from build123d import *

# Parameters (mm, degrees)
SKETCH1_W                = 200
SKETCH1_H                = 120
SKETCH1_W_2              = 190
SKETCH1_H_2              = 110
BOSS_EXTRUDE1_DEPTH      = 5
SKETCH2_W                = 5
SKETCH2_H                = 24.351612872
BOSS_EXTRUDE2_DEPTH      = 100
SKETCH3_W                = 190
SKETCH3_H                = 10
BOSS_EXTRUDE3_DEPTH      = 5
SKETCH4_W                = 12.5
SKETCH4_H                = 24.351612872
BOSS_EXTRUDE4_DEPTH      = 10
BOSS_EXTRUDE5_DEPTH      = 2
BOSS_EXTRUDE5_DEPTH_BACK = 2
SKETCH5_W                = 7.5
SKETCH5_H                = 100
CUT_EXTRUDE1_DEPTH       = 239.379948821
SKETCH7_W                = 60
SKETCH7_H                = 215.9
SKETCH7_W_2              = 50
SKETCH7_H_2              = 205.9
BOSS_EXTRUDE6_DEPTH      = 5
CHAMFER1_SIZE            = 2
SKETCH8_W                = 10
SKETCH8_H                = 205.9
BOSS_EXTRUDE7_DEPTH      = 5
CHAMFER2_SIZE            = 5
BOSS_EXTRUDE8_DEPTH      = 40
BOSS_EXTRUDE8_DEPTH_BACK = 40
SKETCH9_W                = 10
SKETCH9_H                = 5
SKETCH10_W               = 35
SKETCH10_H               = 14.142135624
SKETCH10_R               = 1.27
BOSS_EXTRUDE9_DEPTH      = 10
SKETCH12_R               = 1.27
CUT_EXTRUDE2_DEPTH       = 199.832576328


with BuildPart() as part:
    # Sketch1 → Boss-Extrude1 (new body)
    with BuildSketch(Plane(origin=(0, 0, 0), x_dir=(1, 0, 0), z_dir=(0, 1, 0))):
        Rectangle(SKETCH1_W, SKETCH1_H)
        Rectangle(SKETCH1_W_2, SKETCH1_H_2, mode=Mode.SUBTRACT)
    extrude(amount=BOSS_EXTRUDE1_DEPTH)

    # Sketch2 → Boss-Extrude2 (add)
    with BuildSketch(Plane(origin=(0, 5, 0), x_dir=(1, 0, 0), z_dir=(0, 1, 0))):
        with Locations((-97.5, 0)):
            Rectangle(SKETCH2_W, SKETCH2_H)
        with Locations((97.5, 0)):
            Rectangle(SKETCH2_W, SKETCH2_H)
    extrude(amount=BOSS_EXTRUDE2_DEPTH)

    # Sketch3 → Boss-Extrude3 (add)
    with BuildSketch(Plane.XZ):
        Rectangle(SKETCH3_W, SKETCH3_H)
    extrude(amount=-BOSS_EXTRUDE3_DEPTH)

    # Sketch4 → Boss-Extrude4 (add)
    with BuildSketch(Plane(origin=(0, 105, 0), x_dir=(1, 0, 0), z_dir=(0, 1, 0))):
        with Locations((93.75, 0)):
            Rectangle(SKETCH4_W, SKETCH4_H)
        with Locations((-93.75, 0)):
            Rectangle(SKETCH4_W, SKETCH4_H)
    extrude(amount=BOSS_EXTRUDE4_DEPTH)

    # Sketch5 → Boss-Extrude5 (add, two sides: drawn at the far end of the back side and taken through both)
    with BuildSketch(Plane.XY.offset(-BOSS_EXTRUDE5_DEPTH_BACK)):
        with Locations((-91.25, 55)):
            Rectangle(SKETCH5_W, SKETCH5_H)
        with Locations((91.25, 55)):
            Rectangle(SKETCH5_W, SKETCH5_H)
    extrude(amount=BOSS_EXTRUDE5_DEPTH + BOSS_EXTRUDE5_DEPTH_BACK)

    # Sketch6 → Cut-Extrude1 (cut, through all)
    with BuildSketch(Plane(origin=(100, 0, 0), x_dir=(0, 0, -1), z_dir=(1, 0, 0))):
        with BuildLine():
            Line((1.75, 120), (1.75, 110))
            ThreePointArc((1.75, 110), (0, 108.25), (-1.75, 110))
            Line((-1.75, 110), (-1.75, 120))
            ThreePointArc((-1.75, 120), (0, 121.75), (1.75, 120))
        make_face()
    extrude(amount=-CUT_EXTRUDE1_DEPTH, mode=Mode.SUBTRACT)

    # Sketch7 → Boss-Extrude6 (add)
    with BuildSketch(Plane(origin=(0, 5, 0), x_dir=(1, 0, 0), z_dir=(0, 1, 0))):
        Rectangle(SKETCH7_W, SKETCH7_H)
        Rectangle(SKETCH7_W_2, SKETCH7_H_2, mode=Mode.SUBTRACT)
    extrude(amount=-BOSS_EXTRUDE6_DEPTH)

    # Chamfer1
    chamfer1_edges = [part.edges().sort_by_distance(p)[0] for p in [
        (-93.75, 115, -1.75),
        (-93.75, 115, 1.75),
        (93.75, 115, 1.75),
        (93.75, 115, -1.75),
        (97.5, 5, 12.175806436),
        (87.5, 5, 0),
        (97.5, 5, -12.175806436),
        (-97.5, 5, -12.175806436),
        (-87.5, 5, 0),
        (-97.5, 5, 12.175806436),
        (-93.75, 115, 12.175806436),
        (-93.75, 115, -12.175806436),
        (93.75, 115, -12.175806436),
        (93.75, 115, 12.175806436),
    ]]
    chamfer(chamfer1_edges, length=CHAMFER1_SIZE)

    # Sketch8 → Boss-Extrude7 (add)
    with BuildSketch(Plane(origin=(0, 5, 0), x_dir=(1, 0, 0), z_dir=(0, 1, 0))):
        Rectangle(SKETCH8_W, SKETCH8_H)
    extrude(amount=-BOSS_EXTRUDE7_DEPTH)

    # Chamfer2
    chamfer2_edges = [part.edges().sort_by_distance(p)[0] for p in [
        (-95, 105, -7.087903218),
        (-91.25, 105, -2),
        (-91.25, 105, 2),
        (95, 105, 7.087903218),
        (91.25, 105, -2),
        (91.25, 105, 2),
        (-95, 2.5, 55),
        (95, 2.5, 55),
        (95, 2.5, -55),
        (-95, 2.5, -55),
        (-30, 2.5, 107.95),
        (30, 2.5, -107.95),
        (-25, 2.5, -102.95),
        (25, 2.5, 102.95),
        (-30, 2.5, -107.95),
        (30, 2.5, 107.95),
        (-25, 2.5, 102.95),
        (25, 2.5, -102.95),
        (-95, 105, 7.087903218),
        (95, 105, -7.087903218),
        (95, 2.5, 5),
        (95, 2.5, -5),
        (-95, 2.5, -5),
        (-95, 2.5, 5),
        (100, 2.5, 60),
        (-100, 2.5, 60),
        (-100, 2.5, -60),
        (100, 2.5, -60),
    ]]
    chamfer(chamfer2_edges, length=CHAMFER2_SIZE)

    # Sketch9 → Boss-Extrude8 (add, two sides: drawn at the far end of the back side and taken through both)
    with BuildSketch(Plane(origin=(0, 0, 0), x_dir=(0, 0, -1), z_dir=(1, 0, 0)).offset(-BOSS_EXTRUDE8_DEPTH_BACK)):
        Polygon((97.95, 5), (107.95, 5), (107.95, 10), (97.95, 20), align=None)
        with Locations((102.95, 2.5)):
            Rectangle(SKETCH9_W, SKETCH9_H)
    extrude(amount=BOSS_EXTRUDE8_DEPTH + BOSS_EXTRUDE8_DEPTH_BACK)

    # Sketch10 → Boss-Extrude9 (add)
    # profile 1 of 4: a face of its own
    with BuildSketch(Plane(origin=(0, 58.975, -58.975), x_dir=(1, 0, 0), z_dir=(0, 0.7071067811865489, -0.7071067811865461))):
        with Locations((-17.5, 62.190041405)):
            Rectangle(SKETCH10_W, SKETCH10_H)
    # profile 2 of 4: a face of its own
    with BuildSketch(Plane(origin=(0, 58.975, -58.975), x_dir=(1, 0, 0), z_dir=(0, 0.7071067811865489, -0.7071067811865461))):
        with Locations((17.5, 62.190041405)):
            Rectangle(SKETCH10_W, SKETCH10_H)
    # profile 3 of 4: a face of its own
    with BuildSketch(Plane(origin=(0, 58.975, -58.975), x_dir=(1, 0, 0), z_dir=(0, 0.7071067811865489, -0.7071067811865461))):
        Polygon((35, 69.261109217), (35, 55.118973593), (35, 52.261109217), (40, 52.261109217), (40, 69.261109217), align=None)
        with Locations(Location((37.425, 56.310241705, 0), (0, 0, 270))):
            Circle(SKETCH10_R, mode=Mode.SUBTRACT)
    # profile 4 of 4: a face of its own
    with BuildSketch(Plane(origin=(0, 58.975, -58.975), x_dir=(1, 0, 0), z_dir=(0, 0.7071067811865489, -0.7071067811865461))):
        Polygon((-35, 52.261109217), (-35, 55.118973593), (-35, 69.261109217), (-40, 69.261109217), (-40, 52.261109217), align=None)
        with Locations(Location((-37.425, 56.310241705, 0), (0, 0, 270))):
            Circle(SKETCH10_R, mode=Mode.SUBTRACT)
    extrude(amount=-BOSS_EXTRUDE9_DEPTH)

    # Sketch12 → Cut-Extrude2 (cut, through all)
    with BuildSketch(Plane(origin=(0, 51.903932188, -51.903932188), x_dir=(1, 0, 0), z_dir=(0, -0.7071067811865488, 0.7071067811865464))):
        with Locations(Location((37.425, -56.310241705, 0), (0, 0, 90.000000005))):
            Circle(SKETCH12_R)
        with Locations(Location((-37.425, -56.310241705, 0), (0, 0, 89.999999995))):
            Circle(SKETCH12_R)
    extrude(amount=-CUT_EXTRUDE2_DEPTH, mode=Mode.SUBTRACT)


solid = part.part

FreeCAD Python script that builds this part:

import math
import FreeCAD as App
import Part
import Sketcher
Q = App.Units.Quantity


def edges_at(feature, points):
    """Names of the edges that pass closest to the given points."""
    edges = feature.Shape.Edges
    near = lambda p: min(range(len(edges)), key=lambda i: edges[i].distToShape(Part.Vertex(*p))[0])
    return sorted({f"Edge{near(p) + 1}" for p in points})

doc = App.newDocument("Part")
body = doc.addObject("PartDesign::Body", "Body")

# Sketch on XZ plane
sketch1 = body.newObject("Sketcher::SketchObject", "Sketch")
sketch1.AttachmentSupport = (doc.getObject("XZ_Plane"), [""])
sketch1.MapMode = "FlatFace"
sketch1.addGeometry(Part.LineSegment(App.Vector(-100, -60, 0), App.Vector(-100, 60, 0)), False)
sketch1.addGeometry(Part.LineSegment(App.Vector(-100, 60, 0), App.Vector(100, 60, 0)), False)
sketch1.addGeometry(Part.LineSegment(App.Vector(100, 60, 0), App.Vector(100, -60, 0)), False)
sketch1.addGeometry(Part.LineSegment(App.Vector(100, -60, 0), App.Vector(-100, -60, 0)), False)
sketch1.addGeometry(Part.LineSegment(App.Vector(95, 55, 0), App.Vector(-95, 55, 0)), False)
sketch1.addGeometry(Part.LineSegment(App.Vector(-95, 55, 0), App.Vector(-95, -55, 0)), False)
sketch1.addGeometry(Part.LineSegment(App.Vector(-95, -55, 0), App.Vector(95, -55, 0)), False)
sketch1.addGeometry(Part.LineSegment(App.Vector(95, -55, 0), App.Vector(95, 55, 0)), False)
sketch1.addConstraint(Sketcher.Constraint("Coincident", 0, 2, 1, 1))
sketch1.addConstraint(Sketcher.Constraint("Coincident", 1, 2, 2, 1))
sketch1.addConstraint(Sketcher.Constraint("Coincident", 2, 2, 3, 1))
sketch1.addConstraint(Sketcher.Constraint("Coincident", 3, 2, 0, 1))
sketch1.addConstraint(Sketcher.Constraint("Coincident", 4, 2, 5, 1))
sketch1.addConstraint(Sketcher.Constraint("Coincident", 5, 2, 6, 1))
sketch1.addConstraint(Sketcher.Constraint("Coincident", 6, 2, 7, 1))
sketch1.addConstraint(Sketcher.Constraint("Coincident", 7, 2, 4, 1))
sketch1.addConstraint(Sketcher.Constraint("Vertical", 0))
sketch1.addConstraint(Sketcher.Constraint("Horizontal", 1))
sketch1.addConstraint(Sketcher.Constraint("Vertical", 2))
sketch1.addConstraint(Sketcher.Constraint("Horizontal", 3))
sketch1.addConstraint(Sketcher.Constraint("Horizontal", 4))
sketch1.addConstraint(Sketcher.Constraint("Vertical", 5))
sketch1.addConstraint(Sketcher.Constraint("Horizontal", 6))
sketch1.addConstraint(Sketcher.Constraint("Vertical", 7))
sketch1.addConstraint(Sketcher.Constraint("Symmetric", 0, 2, 2, 2, -1, 1))
sketch1.addConstraint(Sketcher.Constraint("Symmetric", 4, 2, 6, 2, -1, 1))
sketch1.addConstraint(Sketcher.Constraint("DistanceX", 1, 1, 1, 2, Q("200 mm")))
sketch1.addConstraint(Sketcher.Constraint("DistanceX", 4, 2, 4, 1, Q("190 mm")))
sketch1.addConstraint(Sketcher.Constraint("DistanceY", 0, 1, 0, 2, Q("120 mm")))
sketch1.addConstraint(Sketcher.Constraint("DistanceY", 5, 2, 5, 1, Q("110 mm")))
pad1 = body.newObject("PartDesign::Pad", "Pad")
pad1.Profile = sketch1
pad1.Length = 5
pad1.Reversed = True

# Sketch on XZ plane
sketch2 = body.newObject("Sketcher::SketchObject", "Sketch001")
sketch2.AttachmentSupport = (doc.getObject("XZ_Plane"), [""])
sketch2.MapMode = "FlatFace"
sketch2.AttachmentOffset = App.Placement(App.Vector(0, 0, -5), App.Rotation())
sketch2.addGeometry(Part.LineSegment(App.Vector(-100, -12, 0), App.Vector(-100, 12, 0)), False)
sketch2.addGeometry(Part.LineSegment(App.Vector(-100, 12, 0), App.Vector(-95, 12, 0)), False)
sketch2.addGeometry(Part.LineSegment(App.Vector(-95, 12, 0), App.Vector(-95, -12, 0)), False)
sketch2.addGeometry(Part.LineSegment(App.Vector(-95, -12, 0), App.Vector(-100, -12, 0)), False)
sketch2.addGeometry(Part.LineSegment(App.Vector(95, -12, 0), App.Vector(95, 12, 0)), False)
sketch2.addGeometry(Part.LineSegment(App.Vector(95, 12, 0), App.Vector(100, 12, 0)), False)
sketch2.addGeometry(Part.LineSegment(App.Vector(100, 12, 0), App.Vector(100, -12, 0)), False)
sketch2.addGeometry(Part.LineSegment(App.Vector(100, -12, 0), App.Vector(95, -12, 0)), False)
sketch2.addConstraint(Sketcher.Constraint("Coincident", 0, 2, 1, 1))
sketch2.addConstraint(Sketcher.Constraint("Coincident", 1, 2, 2, 1))
sketch2.addConstraint(Sketcher.Constraint("Coincident", 2, 2, 3, 1))
sketch2.addConstraint(Sketcher.Constraint("Coincident", 3, 2, 0, 1))
sketch2.addConstraint(Sketcher.Constraint("Coincident", 4, 2, 5, 1))
sketch2.addConstraint(Sketcher.Constraint("Coincident", 5, 2, 6, 1))
sketch2.addConstraint(Sketcher.Constraint("Coincident", 6, 2, 7, 1))
sketch2.addConstraint(Sketcher.Constraint("Coincident", 7, 2, 4, 1))
sketch2.addConstraint(Sketcher.Constraint("Vertical", 0))
sketch2.addConstraint(Sketcher.Constraint("Horizontal", 1))
sketch2.addConstraint(Sketcher.Constraint("Vertical", 2))
sketch2.addConstraint(Sketcher.Constraint("Horizontal", 3))
sketch2.addConstraint(Sketcher.Constraint("Vertical", 4))
sketch2.addConstraint(Sketcher.Constraint("Horizontal", 5))
sketch2.addConstraint(Sketcher.Constraint("Vertical", 6))
sketch2.addConstraint(Sketcher.Constraint("Horizontal", 7))
sketch2.addConstraint(Sketcher.Constraint("Symmetric", 2, 2, 4, 2, -1, 1))
sketch2.addConstraint(Sketcher.Constraint("Symmetric", 0, 2, 6, 2, -1, 1))
sketch2.addConstraint(Sketcher.Constraint("Horizontal", 1, 2, 4, 2))
sketch2.addConstraint(Sketcher.Constraint("DistanceX", 1, 1, 1, 2, Q("5 mm")))
sketch2.addConstraint(Sketcher.Constraint("DistanceX", 0, 2, -1, 1, Q("100 mm")))
sketch2.addConstraint(Sketcher.Constraint("DistanceY", 0, 1, 0, 2, Q("24.351613 mm")))
pad2 = body.newObject("PartDesign::Pad", "Pad001")
pad2.Profile = sketch2
pad2.Length = 100
pad2.Reversed = True

# Sketch on XZ plane
sketch3 = body.newObject("Sketcher::SketchObject", "Sketch002")
sketch3.AttachmentSupport = (doc.getObject("XZ_Plane"), [""])
sketch3.MapMode = "FlatFace"
sketch3.addGeometry(Part.LineSegment(App.Vector(-95, 5, 0), App.Vector(-95, -5, 0)), False)
sketch3.addGeometry(Part.LineSegment(App.Vector(-95, -5, 0), App.Vector(95, -5, 0)), False)
sketch3.addGeometry(Part.LineSegment(App.Vector(95, -5, 0), App.Vector(95, 5, 0)), False)
sketch3.addGeometry(Part.LineSegment(App.Vector(95, 5, 0), App.Vector(-95, 5, 0)), False)
sketch3.addConstraint(Sketcher.Constraint("Coincident", 0, 2, 1, 1))
sketch3.addConstraint(Sketcher.Constraint("Coincident", 1, 2, 2, 1))
sketch3.addConstraint(Sketcher.Constraint("Coincident", 2, 2, 3, 1))
sketch3.addConstraint(Sketcher.Constraint("Coincident", 3, 2, 0, 1))
sketch3.addConstraint(Sketcher.Constraint("Vertical", 0))
sketch3.addConstraint(Sketcher.Constraint("Horizontal", 1))
sketch3.addConstraint(Sketcher.Constraint("Vertical", 2))
sketch3.addConstraint(Sketcher.Constraint("Horizontal", 3))
sketch3.addConstraint(Sketcher.Constraint("Symmetric", 0, 2, 2, 2, -1, 1))
sketch3.addConstraint(Sketcher.Constraint("DistanceX", 1, 1, 1, 2, Q("190 mm")))
sketch3.addConstraint(Sketcher.Constraint("DistanceY", 0, 2, 0, 1, Q("10 mm")))
pad3 = body.newObject("PartDesign::Pad", "Pad002")
pad3.Profile = sketch3
pad3.Length = 5
pad3.Reversed = True

# Sketch on XZ plane
sketch4 = body.newObject("Sketcher::SketchObject", "Sketch003")
sketch4.AttachmentSupport = (doc.getObject("XZ_Plane"), [""])
sketch4.MapMode = "FlatFace"
sketch4.AttachmentOffset = App.Placement(App.Vector(0, 0, -105), App.Rotation())
sketch4.addGeometry(Part.LineSegment(App.Vector(88, -12, 0), App.Vector(88, 12, 0)), False)
sketch4.addGeometry(Part.LineSegment(App.Vector(88, 12, 0), App.Vector(100, 12, 0)), False)
sketch4.addGeometry(Part.LineSegment(App.Vector(100, 12, 0), App.Vector(100, -12, 0)), False)
sketch4.addGeometry(Part.LineSegment(App.Vector(100, -12, 0), App.Vector(88, -12, 0)), False)
sketch4.addGeometry(Part.LineSegment(App.Vector(-100, -12, 0), App.Vector(-100, 12, 0)), False)
sketch4.addGeometry(Part.LineSegment(App.Vector(-100, 12, 0), App.Vector(-88, 12, 0)), False)
sketch4.addGeometry(Part.LineSegment(App.Vector(-88, 12, 0), App.Vector(-88, -12, 0)), False)
sketch4.addGeometry(Part.LineSegment(App.Vector(-88, -12, 0), App.Vector(-100, -12, 0)), False)
sketch4.addConstraint(Sketcher.Constraint("Coincident", 0, 2, 1, 1))
sketch4.addConstraint(Sketcher.Constraint("Coincident", 1, 2, 2, 1))
sketch4.addConstraint(Sketcher.Constraint("Coincident", 2, 2, 3, 1))
sketch4.addConstraint(Sketcher.Constraint("Coincident", 3, 2, 0, 1))
sketch4.addConstraint(Sketcher.Constraint("Coincident", 4, 2, 5, 1))
sketch4.addConstraint(Sketcher.Constraint("Coincident", 5, 2, 6, 1))
sketch4.addConstraint(Sketcher.Constraint("Coincident", 6, 2, 7, 1))
sketch4.addConstraint(Sketcher.Constraint("Coincident", 7, 2, 4, 1))
sketch4.addConstraint(Sketcher.Constraint("Vertical", 0))
sketch4.addConstraint(Sketcher.Constraint("Horizontal", 1))
sketch4.addConstraint(Sketcher.Constraint("Vertical", 2))
sketch4.addConstraint(Sketcher.Constraint("Horizontal", 3))
sketch4.addConstraint(Sketcher.Constraint("Vertical", 4))
sketch4.addConstraint(Sketcher.Constraint("Horizontal", 5))
sketch4.addConstraint(Sketcher.Constraint("Vertical", 6))
sketch4.addConstraint(Sketcher.Constraint("Horizontal", 7))
sketch4.addConstraint(Sketcher.Constraint("Symmetric", 2, 2, 4, 2, -1, 1))
sketch4.addConstraint(Sketcher.Constraint("Symmetric", 0, 2, 6, 2, -1, 1))
sketch4.addConstraint(Sketcher.Constraint("Horizontal", 1, 2, 4, 2))
sketch4.addConstraint(Sketcher.Constraint("DistanceX", 1, 1, 1, 2, Q("12.5 mm")))
sketch4.addConstraint(Sketcher.Constraint("DistanceX", -1, 1, 1, 2, Q("100 mm")))
sketch4.addConstraint(Sketcher.Constraint("DistanceY", 0, 1, 0, 2, Q("24.351613 mm")))
pad4 = body.newObject("PartDesign::Pad", "Pad003")
pad4.Profile = sketch4
pad4.Length = 10
pad4.Reversed = True

# Sketch on XY plane
sketch5 = body.newObject("Sketcher::SketchObject", "Sketch004")
sketch5.AttachmentSupport = (doc.getObject("XY_Plane"), [""])
sketch5.MapMode = "FlatFace"
sketch5.addGeometry(Part.LineSegment(App.Vector(-95, 105, 0), App.Vector(-95, 5, 0)), False)
sketch5.addGeometry(Part.LineSegment(App.Vector(-95, 5, 0), App.Vector(-88, 5, 0)), False)
sketch5.addGeometry(Part.LineSegment(App.Vector(-88, 5, 0), App.Vector(-88, 105, 0)), False)
sketch5.addGeometry(Part.LineSegment(App.Vector(-88, 105, 0), App.Vector(-95, 105, 0)), False)
sketch5.addGeometry(Part.LineSegment(App.Vector(88, 105, 0), App.Vector(88, 5, 0)), False)
sketch5.addGeometry(Part.LineSegment(App.Vector(88, 5, 0), App.Vector(95, 5, 0)), False)
sketch5.addGeometry(Part.LineSegment(App.Vector(95, 5, 0), App.Vector(95, 105, 0)), False)
sketch5.addGeometry(Part.LineSegment(App.Vector(95, 105, 0), App.Vector(88, 105, 0)), False)
sketch5.addConstraint(Sketcher.Constraint("Coincident", 0, 2, 1, 1))
sketch5.addConstraint(Sketcher.Constraint("Coincident", 1, 2, 2, 1))
sketch5.addConstraint(Sketcher.Constraint("Coincident", 2, 2, 3, 1))
sketch5.addConstraint(Sketcher.Constraint("Coincident", 3, 2, 0, 1))
sketch5.addConstraint(Sketcher.Constraint("Coincident", 4, 2, 5, 1))
sketch5.addConstraint(Sketcher.Constraint("Coincident", 5, 2, 6, 1))
sketch5.addConstraint(Sketcher.Constraint("Coincident", 6, 2, 7, 1))
sketch5.addConstraint(Sketcher.Constraint("Coincident", 7, 2, 4, 1))
sketch5.addConstraint(Sketcher.Constraint("Vertical", 0))
sketch5.addConstraint(Sketcher.Constraint("Horizontal", 1))
sketch5.addConstraint(Sketcher.Constraint("Vertical", 2))
sketch5.addConstraint(Sketcher.Constraint("Horizontal", 3))
sketch5.addConstraint(Sketcher.Constraint("Vertical", 4))
sketch5.addConstraint(Sketcher.Constraint("Horizontal", 5))
sketch5.addConstraint(Sketcher.Constraint("Vertical", 6))
sketch5.addConstraint(Sketcher.Constraint("Horizontal", 7))
sketch5.addConstraint(Sketcher.Constraint("Symmetric", 1, 2, 4, 2, -2))
sketch5.addConstraint(Sketcher.Constraint("Symmetric", 3, 2, 6, 2, -2))
sketch5.addConstraint(Sketcher.Constraint("DistanceY", 0, 2, 0, 1, Q("100 mm")))
sketch5.addConstraint(Sketcher.Constraint("DistanceX", 1, 1, 1, 2, Q("7.5 mm")))
sketch5.addConstraint(Sketcher.Constraint("DistanceX", 0, 2, -1, 1, Q("95 mm")))
sketch5.addConstraint(Sketcher.Constraint("DistanceY", -1, 1, 0, 2, Q("5 mm")))
pad5 = body.newObject("PartDesign::Pad", "Pad004")
pad5.Profile = sketch5
pad5.Type = "TwoLengths"
pad5.Length = 2
pad5.Length2 = 2

# Sketch on YZ plane
sketch6 = body.newObject("Sketcher::SketchObject", "Sketch005")
sketch6.AttachmentSupport = (doc.getObject("YZ_Plane"), [""])
sketch6.MapMode = "FlatFace"
sketch6.AttachmentOffset = App.Placement(App.Vector(0, 0, 100), App.Rotation())
sketch6.addGeometry(Part.LineSegment(App.Vector(110, -1.8, 0), App.Vector(120, -1.8, 0)), False)
sketch6.addGeometry(Part.ArcOfCircle(Part.Circle(App.Vector(120, 0, 0), App.Vector(0, 0, 1), 1.8), math.radians(-90), math.radians(90)), False)
sketch6.addGeometry(Part.LineSegment(App.Vector(120, 1.8, 0), App.Vector(110, 1.8, 0)), False)
sketch6.addGeometry(Part.ArcOfCircle(Part.Circle(App.Vector(110, 0, 0), App.Vector(0, 0, 1), 1.8), math.radians(90), math.radians(270)), False)
sketch6.addConstraint(Sketcher.Constraint("Tangent", 0, 2, 1, 1))
sketch6.addConstraint(Sketcher.Constraint("Tangent", 1, 2, 2, 1))
sketch6.addConstraint(Sketcher.Constraint("Tangent", 2, 2, 3, 1))
sketch6.addConstraint(Sketcher.Constraint("Tangent", 3, 2, 0, 1))
sketch6.addConstraint(Sketcher.Constraint("Horizontal", 0))
sketch6.addConstraint(Sketcher.Constraint("Horizontal", 2))
sketch6.addConstraint(Sketcher.Constraint("PointOnObject", 1, 3, -1))
sketch6.addConstraint(Sketcher.Constraint("DistanceX", 0, 1, 0, 2, Q("10 mm")))
sketch6.addConstraint(Sketcher.Constraint("Radius", 1, Q("1.75 mm")))
sketch6.addConstraint(Sketcher.Constraint("DistanceX", -1, 1, 1, 3, Q("120 mm")))
pocket1 = body.newObject("PartDesign::Pocket", "Pocket")
pocket1.Profile = sketch6
pocket1.Type = "ThroughAll"

# Sketch on XZ plane
sketch7 = body.newObject("Sketcher::SketchObject", "Sketch006")
sketch7.AttachmentSupport = (doc.getObject("XZ_Plane"), [""])
sketch7.MapMode = "FlatFace"
sketch7.AttachmentOffset = App.Placement(App.Vector(0, 0, -5), App.Rotation())
sketch7.addGeometry(Part.LineSegment(App.Vector(-30, -108, 0), App.Vector(-30, 108, 0)), False)
sketch7.addGeometry(Part.LineSegment(App.Vector(-30, 108, 0), App.Vector(30, 108, 0)), False)
sketch7.addGeometry(Part.LineSegment(App.Vector(30, 108, 0), App.Vector(30, -108, 0)), False)
sketch7.addGeometry(Part.LineSegment(App.Vector(30, -108, 0), App.Vector(-30, -108, 0)), False)
sketch7.addGeometry(Part.LineSegment(App.Vector(25, 103, 0), App.Vector(-25, 103, 0)), False)
sketch7.addGeometry(Part.LineSegment(App.Vector(-25, 103, 0), App.Vector(-25, -103, 0)), False)
sketch7.addGeometry(Part.LineSegment(App.Vector(-25, -103, 0), App.Vector(25, -103, 0)), False)
sketch7.addGeometry(Part.LineSegment(App.Vector(25, -103, 0), App.Vector(25, 103, 0)), False)
sketch7.addConstraint(Sketcher.Constraint("Coincident", 0, 2, 1, 1))
sketch7.addConstraint(Sketcher.Constraint("Coincident", 1, 2, 2, 1))
sketch7.addConstraint(Sketcher.Constraint("Coincident", 2, 2, 3, 1))
sketch7.addConstraint(Sketcher.Constraint("Coincident", 3, 2, 0, 1))
sketch7.addConstraint(Sketcher.Constraint("Coincident", 4, 2, 5, 1))
sketch7.addConstraint(Sketcher.Constraint("Coincident", 5, 2, 6, 1))
sketch7.addConstraint(Sketcher.Constraint("Coincident", 6, 2, 7, 1))
sketch7.addConstraint(Sketcher.Constraint("Coincident", 7, 2, 4, 1))
sketch7.addConstraint(Sketcher.Constraint("Vertical", 0))
sketch7.addConstraint(Sketcher.Constraint("Horizontal", 1))
sketch7.addConstraint(Sketcher.Constraint("Vertical", 2))
sketch7.addConstraint(Sketcher.Constraint("Horizontal", 3))
sketch7.addConstraint(Sketcher.Constraint("Horizontal", 4))
sketch7.addConstraint(Sketcher.Constraint("Vertical", 5))
sketch7.addConstraint(Sketcher.Constraint("Horizontal", 6))
sketch7.addConstraint(Sketcher.Constraint("Vertical", 7))
sketch7.addConstraint(Sketcher.Constraint("Symmetric", 0, 2, 2, 2, -1, 1))
sketch7.addConstraint(Sketcher.Constraint("Symmetric", 4, 2, 6, 2, -1, 1))
sketch7.addConstraint(Sketcher.Constraint("DistanceX", 1, 1, 1, 2, Q("60 mm")))
sketch7.addConstraint(Sketcher.Constraint("DistanceX", 4, 2, 4, 1, Q("50 mm")))
sketch7.addConstraint(Sketcher.Constraint("DistanceY", 0, 1, 0, 2, Q("215.9 mm")))
sketch7.addConstraint(Sketcher.Constraint("DistanceY", 5, 2, 5, 1, Q("205.9 mm")))
pad6 = body.newObject("PartDesign::Pad", "Pad005")
pad6.Profile = sketch7
pad6.Length = 5
doc.recompute()

chamfer = body.newObject("PartDesign::Chamfer", "Chamfer")
chamfer.Base = (pad6, edges_at(pad6, [
    (-93.75, 115, -1.75),
    (-93.75, 115, 1.75),
    (93.75, 115, 1.75),
    (93.75, 115, -1.75),
    (97.5, 5, 12.176),
    (87.5, 5, 0),
    (97.5, 5, -12.176),
    (-97.5, 5, -12.176),
    (-87.5, 5, 0),
    (-97.5, 5, 12.176),
    (-93.75, 115, 12.176),
    (-93.75, 115, -12.176),
    (93.75, 115, -12.176),
    (93.75, 115, 12.176),
]))
chamfer.Size = 2

# Sketch on XZ plane
sketch8 = body.newObject("Sketcher::SketchObject", "Sketch007")
sketch8.AttachmentSupport = (doc.getObject("XZ_Plane"), [""])
sketch8.MapMode = "FlatFace"
sketch8.AttachmentOffset = App.Placement(App.Vector(0, 0, -5), App.Rotation())
sketch8.addGeometry(Part.LineSegment(App.Vector(-5, -103, 0), App.Vector(-5, 103, 0)), False)
sketch8.addGeometry(Part.LineSegment(App.Vector(-5, 103, 0), App.Vector(5, 103, 0)), False)
sketch8.addGeometry(Part.LineSegment(App.Vector(5, 103, 0), App.Vector(5, -103, 0)), False)
sketch8.addGeometry(Part.LineSegment(App.Vector(5, -103, 0), App.Vector(-5, -103, 0)), False)
sketch8.addConstraint(Sketcher.Constraint("Coincident", 0, 2, 1, 1))
sketch8.addConstraint(Sketcher.Constraint("Coincident", 1, 2, 2, 1))
sketch8.addConstraint(Sketcher.Constraint("Coincident", 2, 2, 3, 1))
sketch8.addConstraint(Sketcher.Constraint("Coincident", 3, 2, 0, 1))
sketch8.addConstraint(Sketcher.Constraint("Vertical", 0))
sketch8.addConstraint(Sketcher.Constraint("Horizontal", 1))
sketch8.addConstraint(Sketcher.Constraint("Vertical", 2))
sketch8.addConstraint(Sketcher.Constraint("Horizontal", 3))
sketch8.addConstraint(Sketcher.Constraint("Symmetric", 0, 2, 2, 2, -1, 1))
sketch8.addConstraint(Sketcher.Constraint("DistanceX", 1, 1, 1, 2, Q("10 mm")))
sketch8.addConstraint(Sketcher.Constraint("DistanceY", 0, 1, 0, 2, Q("205.9 mm")))
pad7 = body.newObject("PartDesign::Pad", "Pad006")
pad7.Profile = sketch8
pad7.Length = 5
doc.recompute()

chamfer2 = body.newObject("PartDesign::Chamfer", "Chamfer001")
chamfer2.Base = (pad7, edges_at(pad7, [
    (-95, 105, -7.088),
    (-91.25, 105, -2),
    (-91.25, 105, 2),
    (95, 105, 7.088),
    (91.25, 105, -2),
    (91.25, 105, 2),
    (-95, 2.5, 55),
    (95, 2.5, 55),
    (95, 2.5, -55),
    (-95, 2.5, -55),
    (-30, 2.5, 107.95),
    (30, 2.5, -107.95),
    (-25, 2.5, -102.95),
    (25, 2.5, 102.95),
    (-30, 2.5, -107.95),
    (30, 2.5, 107.95),
    (-25, 2.5, 102.95),
    (25, 2.5, -102.95),
    (-95, 105, 7.088),
    (95, 105, -7.088),
    (95, 2.5, 5),
    (95, 2.5, -5),
    (-95, 2.5, -5),
    (-95, 2.5, 5),
    (100, 2.5, 60),
    (-100, 2.5, 60),
    (-100, 2.5, -60),
    (100, 2.5, -60),
]))
chamfer2.Size = 5

# Sketch on YZ plane
sketch9 = body.newObject("Sketcher::SketchObject", "Sketch008")
sketch9.AttachmentSupport = (doc.getObject("YZ_Plane"), [""])
sketch9.MapMode = "FlatFace"
sketch9.addGeometry(Part.LineSegment(App.Vector(10, -108, 0), App.Vector(20, -98, 0)), False)
sketch9.addGeometry(Part.LineSegment(App.Vector(20, -98, 0), App.Vector(0, -98, 0)), False)
sketch9.addGeometry(Part.LineSegment(App.Vector(0, -98, 0), App.Vector(0, -108, 0)), False)
sketch9.addGeometry(Part.LineSegment(App.Vector(0, -108, 0), App.Vector(10, -108, 0)), False)
sketch9.addConstraint(Sketcher.Constraint("Coincident", 0, 2, 1, 1))
sketch9.addConstraint(Sketcher.Constraint("Coincident", 1, 2, 2, 1))
sketch9.addConstraint(Sketcher.Constraint("Coincident", 2, 2, 3, 1))
sketch9.addConstraint(Sketcher.Constraint("Coincident", 3, 2, 0, 1))
sketch9.addConstraint(Sketcher.Constraint("Horizontal", 1))
sketch9.addConstraint(Sketcher.Constraint("Vertical", 2))
sketch9.addConstraint(Sketcher.Constraint("Horizontal", 3))
sketch9.addConstraint(Sketcher.Constraint("PointOnObject", 1, 2, -2))
sketch9.addConstraint(Sketcher.Constraint("Equal", 3, 2))
sketch9.addConstraint(Sketcher.Constraint("DistanceX", 1, 2, 1, 1, Q("20 mm")))
sketch9.addConstraint(Sketcher.Constraint("DistanceX", 3, 1, 3, 2, Q("10 mm")))
sketch9.addConstraint(Sketcher.Constraint("DistanceY", 0, 2, -1, 1, Q("97.95 mm")))
pad8 = body.newObject("PartDesign::Pad", "Pad007")
pad8.Profile = sketch9
pad8.Type = "TwoLengths"
pad8.Length = 40
pad8.Length2 = 40

# Sketch on an angled plane
sketch10 = body.newObject("Sketcher::SketchObject", "Sketch009")
sketch10.Placement = App.Placement(App.Vector(0, 58.975, -58.975), App.Rotation(App.Vector(1, 0, 0), App.Vector(0, -0.707106781, -0.707106781), App.Vector(0, 0.707106781, -0.707106781), "ZXY"))
sketch10.addGeometry(Part.LineSegment(App.Vector(-35, 55.1, 0), App.Vector(35, 55.1, 0)), False)
sketch10.addGeometry(Part.LineSegment(App.Vector(35, 55.1, 0), App.Vector(35, 52.3, 0)), False)
sketch10.addGeometry(Part.LineSegment(App.Vector(35, 52.3, 0), App.Vector(40, 52.3, 0)), False)
sketch10.addGeometry(Part.LineSegment(App.Vector(40, 52.3, 0), App.Vector(40, 69.3, 0)), False)
sketch10.addGeometry(Part.LineSegment(App.Vector(40, 69.3, 0), App.Vector(-40, 69.3, 0)), False)
sketch10.addGeometry(Part.LineSegment(App.Vector(-40, 69.3, 0), App.Vector(-40, 52.3, 0)), False)
sketch10.addGeometry(Part.LineSegment(App.Vector(-40, 52.3, 0), App.Vector(-35, 52.3, 0)), False)
sketch10.addGeometry(Part.LineSegment(App.Vector(-35, 52.3, 0), App.Vector(-35, 55.1, 0)), False)
sketch10.addGeometry(Part.Circle(App.Vector(-37.4, 56.3, 0), App.Vector(0, 0, 1), 1.3), False)
sketch10.addGeometry(Part.Circle(App.Vector(37.4, 56.3, 0), App.Vector(0, 0, 1), 1.3), False)
sketch10.addConstraint(Sketcher.Constraint("Coincident", 0, 2, 1, 1))
sketch10.addConstraint(Sketcher.Constraint("Coincident", 1, 2, 2, 1))
sketch10.addConstraint(Sketcher.Constraint("Coincident", 2, 2, 3, 1))
sketch10.addConstraint(Sketcher.Constraint("Coincident", 3, 2, 4, 1))
sketch10.addConstraint(Sketcher.Constraint("Coincident", 4, 2, 5, 1))
sketch10.addConstraint(Sketcher.Constraint("Coincident", 5, 2, 6, 1))
sketch10.addConstraint(Sketcher.Constraint("Coincident", 6, 2, 7, 1))
sketch10.addConstraint(Sketcher.Constraint("Coincident", 7, 2, 0, 1))
sketch10.addConstraint(Sketcher.Constraint("Horizontal", 0))
sketch10.addConstraint(Sketcher.Constraint("Vertical", 1))
sketch10.addConstraint(Sketcher.Constraint("Horizontal", 2))
sketch10.addConstraint(Sketcher.Constraint("Vertical", 3))
sketch10.addConstraint(Sketcher.Constraint("Horizontal", 4))
sketch10.addConstraint(Sketcher.Constraint("Vertical", 5))
sketch10.addConstraint(Sketcher.Constraint("Horizontal", 6))
sketch10.addConstraint(Sketcher.Constraint("Vertical", 7))
sketch10.addConstraint(Sketcher.Constraint("Equal", 8, 9))
sketch10.addConstraint(Sketcher.Constraint("Symmetric", 8, 3, 9, 3, -2))
sketch10.addConstraint(Sketcher.Constraint("Symmetric", 2, 2, 5, 2, -2))
sketch10.addConstraint(Sketcher.Constraint("Equal", 2, 6))
sketch10.addConstraint(Sketcher.Constraint("Diameter", 8, Q("2.54 mm")))
sketch10.addConstraint(Sketcher.Constraint("DistanceX", 0, 1, 0, 2, Q("70 mm")))
sketch10.addConstraint(Sketcher.Constraint("DistanceX", 2, 1, 2, 2, Q("5 mm")))
sketch10.addConstraint(Sketcher.Constraint("DistanceY", 3, 1, 3, 2, Q("17 mm")))
sketch10.addConstraint(Sketcher.Constraint("DistanceX", 8, 3, 9, 3, Q("74.85 mm")))
sketch10.addConstraint(Sketcher.Constraint("DistanceY", 1, 2, 1, 1, Q("2.857864 mm")))
sketch10.addConstraint(Sketcher.Constraint("DistanceY", -1, 1, 8, 3, Q("56.310242 mm")))
sketch10.addConstraint(Sketcher.Constraint("DistanceY", -1, 1, 1, 2, Q("52.261109 mm")))
pad9 = body.newObject("PartDesign::Pad", "Pad008")
pad9.Profile = sketch10
pad9.Length = 10
pad9.Reversed = True

# Sketch on an angled plane
sketch11 = body.newObject("Sketcher::SketchObject", "Sketch010")
sketch11.Placement = App.Placement(App.Vector(0, 51.903932, -51.903932), App.Rotation(App.Vector(1, 0, 0), App.Vector(0, 0.707106781, 0.707106781), App.Vector(0, -0.707106781, 0.707106781), "ZXY"))
sketch11.addGeometry(Part.Circle(App.Vector(37.4, -56.3, 0), App.Vector(0, 0, 1), 1.3), False)
sketch11.addGeometry(Part.Circle(App.Vector(-37.4, -56.3, 0), App.Vector(0, 0, 1), 1.3), False)
sketch11.addConstraint(Sketcher.Constraint("Equal", 0, 1))
sketch11.addConstraint(Sketcher.Constraint("Symmetric", 0, 3, 1, 3, -2))
sketch11.addConstraint(Sketcher.Constraint("Diameter", 0, Q("2.54 mm")))
sketch11.addConstraint(Sketcher.Constraint("DistanceX", 1, 3, 0, 3, Q("74.85 mm")))
sketch11.addConstraint(Sketcher.Constraint("DistanceY", 0, 3, -1, 1, Q("56.310242 mm")))
pocket2 = body.newObject("PartDesign::Pocket", "Pocket001")
pocket2.Profile = sketch11
pocket2.Type = "ThroughAll"

doc.recompute()
